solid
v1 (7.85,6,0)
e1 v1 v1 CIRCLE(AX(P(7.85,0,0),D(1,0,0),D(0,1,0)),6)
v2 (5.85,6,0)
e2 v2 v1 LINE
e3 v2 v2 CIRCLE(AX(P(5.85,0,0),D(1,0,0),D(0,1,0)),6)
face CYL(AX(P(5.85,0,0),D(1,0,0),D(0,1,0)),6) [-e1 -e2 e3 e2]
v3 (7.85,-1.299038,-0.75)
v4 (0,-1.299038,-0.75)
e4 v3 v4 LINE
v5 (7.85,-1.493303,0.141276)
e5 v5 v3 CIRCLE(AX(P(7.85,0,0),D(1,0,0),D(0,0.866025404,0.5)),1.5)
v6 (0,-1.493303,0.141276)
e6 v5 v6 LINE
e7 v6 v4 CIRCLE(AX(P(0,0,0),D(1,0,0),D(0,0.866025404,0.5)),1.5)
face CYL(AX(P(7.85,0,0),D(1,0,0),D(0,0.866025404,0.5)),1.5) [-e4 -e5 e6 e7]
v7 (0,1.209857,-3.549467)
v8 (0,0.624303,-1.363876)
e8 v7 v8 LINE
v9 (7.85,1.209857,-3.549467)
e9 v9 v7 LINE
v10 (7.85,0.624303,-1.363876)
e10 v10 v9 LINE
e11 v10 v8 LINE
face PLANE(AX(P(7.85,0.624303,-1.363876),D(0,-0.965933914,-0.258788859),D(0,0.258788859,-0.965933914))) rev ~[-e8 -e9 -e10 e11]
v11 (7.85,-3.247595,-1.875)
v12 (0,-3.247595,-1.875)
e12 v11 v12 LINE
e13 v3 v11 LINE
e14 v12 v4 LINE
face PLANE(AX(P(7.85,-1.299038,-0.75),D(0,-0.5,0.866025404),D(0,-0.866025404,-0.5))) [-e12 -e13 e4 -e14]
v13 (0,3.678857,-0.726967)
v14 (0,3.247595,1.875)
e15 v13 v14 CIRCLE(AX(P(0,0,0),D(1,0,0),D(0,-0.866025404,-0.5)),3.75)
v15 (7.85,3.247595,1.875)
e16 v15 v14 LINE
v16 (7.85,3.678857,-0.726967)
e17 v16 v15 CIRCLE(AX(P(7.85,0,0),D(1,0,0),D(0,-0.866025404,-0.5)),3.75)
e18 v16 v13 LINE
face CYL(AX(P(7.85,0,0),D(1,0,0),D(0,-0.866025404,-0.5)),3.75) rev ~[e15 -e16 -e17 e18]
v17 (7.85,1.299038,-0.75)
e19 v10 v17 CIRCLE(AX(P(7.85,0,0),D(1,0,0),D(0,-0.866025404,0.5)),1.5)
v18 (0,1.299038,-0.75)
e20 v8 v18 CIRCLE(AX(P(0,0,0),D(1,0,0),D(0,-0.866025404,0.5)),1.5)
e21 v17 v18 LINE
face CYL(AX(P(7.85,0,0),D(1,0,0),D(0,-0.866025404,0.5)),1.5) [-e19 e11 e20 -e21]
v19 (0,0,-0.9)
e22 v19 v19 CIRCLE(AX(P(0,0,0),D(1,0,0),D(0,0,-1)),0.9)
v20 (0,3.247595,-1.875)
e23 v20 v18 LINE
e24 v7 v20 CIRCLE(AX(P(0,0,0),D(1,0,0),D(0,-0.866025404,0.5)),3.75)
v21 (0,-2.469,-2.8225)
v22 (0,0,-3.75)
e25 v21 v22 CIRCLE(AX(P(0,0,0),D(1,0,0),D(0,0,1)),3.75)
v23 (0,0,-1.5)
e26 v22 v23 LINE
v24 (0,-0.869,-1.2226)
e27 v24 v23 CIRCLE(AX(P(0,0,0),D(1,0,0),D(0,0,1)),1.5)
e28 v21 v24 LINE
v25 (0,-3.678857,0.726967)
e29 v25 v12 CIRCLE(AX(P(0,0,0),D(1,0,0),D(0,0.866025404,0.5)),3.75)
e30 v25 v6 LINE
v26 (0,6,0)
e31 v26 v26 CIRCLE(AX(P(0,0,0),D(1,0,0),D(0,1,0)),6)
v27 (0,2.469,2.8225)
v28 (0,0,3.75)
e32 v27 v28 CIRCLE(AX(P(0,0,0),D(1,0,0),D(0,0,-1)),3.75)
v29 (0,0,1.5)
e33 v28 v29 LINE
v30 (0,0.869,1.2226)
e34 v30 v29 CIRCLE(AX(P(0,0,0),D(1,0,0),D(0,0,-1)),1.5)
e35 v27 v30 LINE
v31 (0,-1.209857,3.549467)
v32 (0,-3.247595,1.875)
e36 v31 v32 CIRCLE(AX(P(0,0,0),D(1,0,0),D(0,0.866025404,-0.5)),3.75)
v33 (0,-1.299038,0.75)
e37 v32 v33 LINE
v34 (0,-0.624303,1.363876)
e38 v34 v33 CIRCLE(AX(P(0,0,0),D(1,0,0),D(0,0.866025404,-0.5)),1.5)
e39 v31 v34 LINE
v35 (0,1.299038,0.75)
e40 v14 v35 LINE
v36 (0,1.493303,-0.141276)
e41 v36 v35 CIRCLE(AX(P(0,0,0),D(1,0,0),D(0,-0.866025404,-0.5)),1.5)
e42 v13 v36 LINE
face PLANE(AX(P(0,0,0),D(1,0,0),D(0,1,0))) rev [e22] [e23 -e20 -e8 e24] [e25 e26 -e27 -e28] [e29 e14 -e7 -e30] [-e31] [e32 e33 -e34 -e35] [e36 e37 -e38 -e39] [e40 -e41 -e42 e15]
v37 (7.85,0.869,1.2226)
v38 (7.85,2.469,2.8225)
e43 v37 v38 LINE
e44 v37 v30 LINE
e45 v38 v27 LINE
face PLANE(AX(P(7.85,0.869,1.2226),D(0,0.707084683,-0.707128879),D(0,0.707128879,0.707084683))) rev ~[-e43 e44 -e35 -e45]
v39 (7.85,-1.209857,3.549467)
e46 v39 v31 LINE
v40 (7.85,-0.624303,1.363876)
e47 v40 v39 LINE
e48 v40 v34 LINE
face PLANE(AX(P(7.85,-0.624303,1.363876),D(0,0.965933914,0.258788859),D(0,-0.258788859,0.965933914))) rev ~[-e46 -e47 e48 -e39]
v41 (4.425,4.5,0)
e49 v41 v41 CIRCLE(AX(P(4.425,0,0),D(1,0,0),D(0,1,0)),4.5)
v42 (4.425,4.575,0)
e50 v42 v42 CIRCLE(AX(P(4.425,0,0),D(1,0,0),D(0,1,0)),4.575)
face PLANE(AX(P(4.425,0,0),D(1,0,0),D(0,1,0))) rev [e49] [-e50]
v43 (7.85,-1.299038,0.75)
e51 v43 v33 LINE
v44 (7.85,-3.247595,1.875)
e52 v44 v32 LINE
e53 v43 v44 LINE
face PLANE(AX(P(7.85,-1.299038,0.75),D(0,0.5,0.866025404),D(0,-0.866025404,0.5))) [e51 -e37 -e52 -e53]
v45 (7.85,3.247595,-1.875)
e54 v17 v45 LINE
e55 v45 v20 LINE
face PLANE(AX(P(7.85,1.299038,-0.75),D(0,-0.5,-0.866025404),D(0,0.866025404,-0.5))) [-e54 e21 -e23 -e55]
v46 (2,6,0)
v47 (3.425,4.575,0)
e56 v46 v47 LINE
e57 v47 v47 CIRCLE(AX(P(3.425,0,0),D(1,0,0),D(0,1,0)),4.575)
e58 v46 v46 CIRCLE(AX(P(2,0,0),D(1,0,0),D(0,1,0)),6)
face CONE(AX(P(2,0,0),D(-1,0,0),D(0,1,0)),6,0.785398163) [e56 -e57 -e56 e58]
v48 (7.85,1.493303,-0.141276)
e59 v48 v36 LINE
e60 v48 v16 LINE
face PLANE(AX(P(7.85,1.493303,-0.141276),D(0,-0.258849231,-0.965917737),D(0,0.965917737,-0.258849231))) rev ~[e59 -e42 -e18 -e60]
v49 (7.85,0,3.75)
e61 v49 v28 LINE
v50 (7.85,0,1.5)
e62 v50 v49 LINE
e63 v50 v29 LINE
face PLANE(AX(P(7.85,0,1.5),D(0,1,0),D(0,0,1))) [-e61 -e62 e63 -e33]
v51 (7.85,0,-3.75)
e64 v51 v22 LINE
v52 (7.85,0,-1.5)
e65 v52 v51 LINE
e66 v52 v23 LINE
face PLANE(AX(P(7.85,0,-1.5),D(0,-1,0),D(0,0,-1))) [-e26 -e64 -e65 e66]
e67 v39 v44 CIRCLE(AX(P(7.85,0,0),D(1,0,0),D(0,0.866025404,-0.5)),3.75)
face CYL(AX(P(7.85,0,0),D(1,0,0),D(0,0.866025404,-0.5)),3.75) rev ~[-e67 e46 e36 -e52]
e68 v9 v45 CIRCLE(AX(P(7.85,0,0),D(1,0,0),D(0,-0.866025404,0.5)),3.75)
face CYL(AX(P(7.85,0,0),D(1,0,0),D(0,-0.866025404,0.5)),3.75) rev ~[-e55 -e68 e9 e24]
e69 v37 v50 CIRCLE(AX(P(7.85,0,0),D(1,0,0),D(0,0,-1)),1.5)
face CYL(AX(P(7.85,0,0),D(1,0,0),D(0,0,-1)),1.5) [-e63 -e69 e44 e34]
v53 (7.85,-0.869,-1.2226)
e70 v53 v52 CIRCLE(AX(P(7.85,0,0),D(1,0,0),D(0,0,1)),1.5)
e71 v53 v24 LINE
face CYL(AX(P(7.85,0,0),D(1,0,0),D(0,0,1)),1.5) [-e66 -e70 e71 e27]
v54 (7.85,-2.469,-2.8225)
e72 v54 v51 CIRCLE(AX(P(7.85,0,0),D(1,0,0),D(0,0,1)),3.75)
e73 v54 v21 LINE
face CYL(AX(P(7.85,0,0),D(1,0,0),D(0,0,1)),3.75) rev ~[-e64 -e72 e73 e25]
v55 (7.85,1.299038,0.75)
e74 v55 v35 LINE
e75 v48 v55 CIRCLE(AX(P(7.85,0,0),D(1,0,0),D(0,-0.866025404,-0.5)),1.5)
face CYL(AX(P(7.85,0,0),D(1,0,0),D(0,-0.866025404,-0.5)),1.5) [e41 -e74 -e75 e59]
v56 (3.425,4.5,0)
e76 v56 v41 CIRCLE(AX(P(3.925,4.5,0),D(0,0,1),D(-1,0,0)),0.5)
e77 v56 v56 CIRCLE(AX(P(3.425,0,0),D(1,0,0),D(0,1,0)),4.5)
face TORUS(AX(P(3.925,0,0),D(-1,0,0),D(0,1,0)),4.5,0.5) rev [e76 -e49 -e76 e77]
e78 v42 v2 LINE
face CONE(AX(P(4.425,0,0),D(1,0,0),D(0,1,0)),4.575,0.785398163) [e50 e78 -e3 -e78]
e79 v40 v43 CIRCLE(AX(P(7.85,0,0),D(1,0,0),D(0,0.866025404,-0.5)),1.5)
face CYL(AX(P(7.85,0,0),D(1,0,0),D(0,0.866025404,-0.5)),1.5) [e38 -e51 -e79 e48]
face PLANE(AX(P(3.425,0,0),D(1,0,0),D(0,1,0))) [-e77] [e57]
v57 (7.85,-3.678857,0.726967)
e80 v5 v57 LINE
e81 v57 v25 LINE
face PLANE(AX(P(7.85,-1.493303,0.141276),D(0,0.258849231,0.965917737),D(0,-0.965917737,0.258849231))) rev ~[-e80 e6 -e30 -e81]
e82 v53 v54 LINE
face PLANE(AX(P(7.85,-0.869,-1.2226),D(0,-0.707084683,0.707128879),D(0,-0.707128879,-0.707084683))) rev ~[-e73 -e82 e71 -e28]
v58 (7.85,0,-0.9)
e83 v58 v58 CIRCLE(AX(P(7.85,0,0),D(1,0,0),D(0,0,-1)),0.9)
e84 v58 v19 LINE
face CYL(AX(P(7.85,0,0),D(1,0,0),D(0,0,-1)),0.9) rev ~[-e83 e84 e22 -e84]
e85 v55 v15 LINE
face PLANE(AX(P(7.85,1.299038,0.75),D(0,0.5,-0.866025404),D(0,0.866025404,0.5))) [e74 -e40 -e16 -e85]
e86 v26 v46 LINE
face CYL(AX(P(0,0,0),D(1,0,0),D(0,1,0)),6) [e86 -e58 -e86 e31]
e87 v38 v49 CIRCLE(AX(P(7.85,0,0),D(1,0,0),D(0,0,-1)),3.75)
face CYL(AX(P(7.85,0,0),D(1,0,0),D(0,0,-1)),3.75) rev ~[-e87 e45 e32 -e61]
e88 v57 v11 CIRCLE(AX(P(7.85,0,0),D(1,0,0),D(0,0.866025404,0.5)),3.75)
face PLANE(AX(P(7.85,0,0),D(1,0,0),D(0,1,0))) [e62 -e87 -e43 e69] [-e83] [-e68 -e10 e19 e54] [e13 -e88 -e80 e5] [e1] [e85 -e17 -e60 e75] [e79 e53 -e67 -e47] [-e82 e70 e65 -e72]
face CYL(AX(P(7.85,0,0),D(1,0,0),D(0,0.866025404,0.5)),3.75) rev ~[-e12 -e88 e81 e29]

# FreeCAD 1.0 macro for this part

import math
import FreeCAD as App
import Part
import Sketcher
from FreeCAD import Vector

doc = App.newDocument("Part")
params = doc.addObject("Spreadsheet::Sheet", "Params")
for row, (alias, value) in enumerate([
    ("sketch1_radius", "0.5 mm"),
    ("sketch1_width", "2 mm"),
    ("sketch1_width2", "7.85 mm"),
    ("sketch1_height", "6 mm"),
    ("revolution_angle", "360 deg"),
    ("sketch2_radius", "1.5 mm"),
    ("sketch2_radius2", "3.75 mm"),
    ("sketch3_diameter", "1.8 mm"),
    ("pocket2_length", "7.85 mm"),
], start=1):
    params.set(f"A{row}", alias)
    params.set(f"B{row}", "=" + value)
    params.setAlias(f"B{row}", alias)

body = doc.addObject("PartDesign::Body", "Body")

sketch1 = body.newObject("Sketcher::SketchObject", "Sketch")
sketch1.AttachmentSupport = (doc.getObject("XY_Plane"), [""])
sketch1.MapMode = "FlatFace"
sketch1.addGeometry([
    Part.LineSegment(Vector(0, 6, 0), Vector(0, 0, 0)),
    Part.LineSegment(Vector(0, 0, 0), Vector(7.85, 0, 0)),
    Part.LineSegment(Vector(7.85, 0, 0), Vector(7.85, 6, 0)),
    Part.LineSegment(Vector(7.85, 6, 0), Vector(5.85, 6, 0)),
    Part.LineSegment(Vector(5.85, 6, 0), Vector(4.42, 4.58, 0)),
    Part.LineSegment(Vector(4.42, 4.58, 0), Vector(4.42, 4.5, 0)),
    Part.ArcOfCircle(Part.Circle(Vector(3.92, 4.5, 0), Vector(0, 0, 1), 0.5), math.radians(180), math.radians(360)),
    Part.LineSegment(Vector(3.42, 4.5, 0), Vector(3.42, 4.58, 0)),
    Part.LineSegment(Vector(3.42, 4.58, 0), Vector(2, 6, 0)),
    Part.LineSegment(Vector(2, 6, 0), Vector(0, 6, 0)),
], False)
sketch1.addConstraint([
    Sketcher.Constraint("Coincident", 0, 2, 1, 1),
    Sketcher.Constraint("Coincident", 1, 2, 2, 1),
    Sketcher.Constraint("Coincident", 2, 2, 3, 1),
    Sketcher.Constraint("Coincident", 3, 2, 4, 1),
    Sketcher.Constraint("Coincident", 4, 2, 5, 1),
    Sketcher.Constraint("Tangent", 5, 2, 6, 2),
    Sketcher.Constraint("Tangent", 6, 1, 7, 1),
    Sketcher.Constraint("Coincident", 7, 2, 8, 1),
    Sketcher.Constraint("Coincident", 8, 2, 9, 1),
    Sketcher.Constraint("Coincident", 9, 2, 0, 1),
    Sketcher.Constraint("Vertical", 0),
    Sketcher.Constraint("Horizontal", 1),
    Sketcher.Constraint("Vertical", 2),
    Sketcher.Constraint("Horizontal", 3),
    Sketcher.Constraint("Vertical", 5),
    Sketcher.Constraint("Vertical", 7),
    Sketcher.Constraint("Horizontal", 9),
    Sketcher.Constraint("Coincident", 0, 2, -1, 1),
    Sketcher.Constraint("Perpendicular", 4, 8),
    Sketcher.Constraint("Horizontal", 4, 2, 7, 2),
    Sketcher.Constraint("Horizontal", 3, 2, 8, 2),
    Sketcher.Constraint("Equal", 3, 9),
    Sketcher.Constraint("Equal", 4, 8),
    Sketcher.Constraint("Radius", 6, 0.5),
    Sketcher.Constraint("DistanceX", 3, 2, 3, 1, 2.0),
    Sketcher.Constraint("DistanceX", 1, 1, 1, 2, 7.85),
    Sketcher.Constraint("DistanceY", 0, 2, 0, 1, 6.0),
    Sketcher.Constraint("DistanceY", -1, 1, 6, 3, 4.5),
])
sketch1.setExpression("Constraints[23]", "Params.sketch1_radius")
sketch1.setExpression("Constraints[24]", "Params.sketch1_width")
sketch1.setExpression("Constraints[25]", "Params.sketch1_width2")
sketch1.setExpression("Constraints[26]", "Params.sketch1_height")
revolution = body.newObject("PartDesign::Revolution", "Revolution")
revolution.Profile = sketch1
revolution.ReferenceAxis = (sketch1, ["H_Axis"])
revolution.setExpression("Angle", "Params.revolution_angle")

sketch2 = body.newObject("Sketcher::SketchObject", "Sketch001")
sketch2.AttachmentSupport = (doc.getObject("YZ_Plane"), [""])
sketch2.MapMode = "FlatFace"
sketch2.AttachmentOffset = App.Placement(Vector(0, 0, 7.85), App.Rotation())
sketch2.addGeometry([
    Part.ArcOfCircle(Part.Circle(Vector(0, 0, 0), Vector(0, 0, 1), 3.8), math.radians(49), math.radians(90)),
    Part.LineSegment(Vector(0, 3.8, 0), Vector(0, 1.5, 0)),
    Part.ArcOfCircle(Part.Circle(Vector(0, 0, 0), Vector(0, 0, 1), 1.5), math.radians(55), math.radians(90)),
    Part.LineSegment(Vector(0.9, 1.2, 0), Vector(2.5, 2.8, 0)),
], False)
sketch2.addConstraint([
    Sketcher.Constraint("Coincident", 0, 2, 1, 1),
    Sketcher.Constraint("Coincident", 1, 2, 2, 2),
    Sketcher.Constraint("Coincident", 2, 1, 3, 1),
    Sketcher.Constraint("Coincident", 3, 2, 0, 1),
    Sketcher.Constraint("Vertical", 1),
    Sketcher.Constraint("Coincident", 0, 3, -1, 1),
    Sketcher.Constraint("Coincident", 2, 3, -1, 1),
    Sketcher.Constraint("PointOnObject", 0, 2, -2),
    Sketcher.Constraint("Radius", 2, 1.5),
    Sketcher.Constraint("Radius", 0, 3.75),
    Sketcher.Constraint("DistanceX", 2, 1, 3, 2, 1.6),
    Sketcher.Constraint("DistanceX", -1, 1, 2, 1, 0.869),
])
sketch2.setExpression("Constraints[8]", "Params.sketch2_radius")
sketch2.setExpression("Constraints[9]", "Params.sketch2_radius2")
pocket1 = body.newObject("PartDesign::Pocket", "Pocket")
pocket1.Profile = sketch2
pocket1.Type = "ThroughAll"
doc.recompute()

polarpattern = body.newObject("PartDesign::PolarPattern", "PolarPattern")
polarpattern.Originals = [pocket1]
polarpattern.Axis = (doc.getObject("X_Axis"), [""])
polarpattern.Angle = 360
polarpattern.Occurrences = 6
body.Tip = polarpattern

sketch3 = body.newObject("Sketcher::SketchObject", "Sketch002")
sketch3.AttachmentSupport = (doc.getObject("YZ_Plane"), [""])
sketch3.MapMode = "FlatFace"
sketch3.AttachmentOffset = App.Placement(Vector(0, 0, 7.85), App.Rotation())
sketch3.addGeometry(Part.Circle(Vector(0, 0, 0), Vector(0, 0, 1), 0.9), False)
sketch3.addConstraint([
    Sketcher.Constraint("Coincident", 0, 3, -1, 1),
    Sketcher.Constraint("Diameter", 0, 1.8),
])
sketch3.setExpression("Constraints[1]", "Params.sketch3_diameter")
pocket2 = body.newObject("PartDesign::Pocket", "Pocket001")
pocket2.Profile = sketch3
pocket2.setExpression("Length", "Params.pocket2_length")

doc.recompute()
